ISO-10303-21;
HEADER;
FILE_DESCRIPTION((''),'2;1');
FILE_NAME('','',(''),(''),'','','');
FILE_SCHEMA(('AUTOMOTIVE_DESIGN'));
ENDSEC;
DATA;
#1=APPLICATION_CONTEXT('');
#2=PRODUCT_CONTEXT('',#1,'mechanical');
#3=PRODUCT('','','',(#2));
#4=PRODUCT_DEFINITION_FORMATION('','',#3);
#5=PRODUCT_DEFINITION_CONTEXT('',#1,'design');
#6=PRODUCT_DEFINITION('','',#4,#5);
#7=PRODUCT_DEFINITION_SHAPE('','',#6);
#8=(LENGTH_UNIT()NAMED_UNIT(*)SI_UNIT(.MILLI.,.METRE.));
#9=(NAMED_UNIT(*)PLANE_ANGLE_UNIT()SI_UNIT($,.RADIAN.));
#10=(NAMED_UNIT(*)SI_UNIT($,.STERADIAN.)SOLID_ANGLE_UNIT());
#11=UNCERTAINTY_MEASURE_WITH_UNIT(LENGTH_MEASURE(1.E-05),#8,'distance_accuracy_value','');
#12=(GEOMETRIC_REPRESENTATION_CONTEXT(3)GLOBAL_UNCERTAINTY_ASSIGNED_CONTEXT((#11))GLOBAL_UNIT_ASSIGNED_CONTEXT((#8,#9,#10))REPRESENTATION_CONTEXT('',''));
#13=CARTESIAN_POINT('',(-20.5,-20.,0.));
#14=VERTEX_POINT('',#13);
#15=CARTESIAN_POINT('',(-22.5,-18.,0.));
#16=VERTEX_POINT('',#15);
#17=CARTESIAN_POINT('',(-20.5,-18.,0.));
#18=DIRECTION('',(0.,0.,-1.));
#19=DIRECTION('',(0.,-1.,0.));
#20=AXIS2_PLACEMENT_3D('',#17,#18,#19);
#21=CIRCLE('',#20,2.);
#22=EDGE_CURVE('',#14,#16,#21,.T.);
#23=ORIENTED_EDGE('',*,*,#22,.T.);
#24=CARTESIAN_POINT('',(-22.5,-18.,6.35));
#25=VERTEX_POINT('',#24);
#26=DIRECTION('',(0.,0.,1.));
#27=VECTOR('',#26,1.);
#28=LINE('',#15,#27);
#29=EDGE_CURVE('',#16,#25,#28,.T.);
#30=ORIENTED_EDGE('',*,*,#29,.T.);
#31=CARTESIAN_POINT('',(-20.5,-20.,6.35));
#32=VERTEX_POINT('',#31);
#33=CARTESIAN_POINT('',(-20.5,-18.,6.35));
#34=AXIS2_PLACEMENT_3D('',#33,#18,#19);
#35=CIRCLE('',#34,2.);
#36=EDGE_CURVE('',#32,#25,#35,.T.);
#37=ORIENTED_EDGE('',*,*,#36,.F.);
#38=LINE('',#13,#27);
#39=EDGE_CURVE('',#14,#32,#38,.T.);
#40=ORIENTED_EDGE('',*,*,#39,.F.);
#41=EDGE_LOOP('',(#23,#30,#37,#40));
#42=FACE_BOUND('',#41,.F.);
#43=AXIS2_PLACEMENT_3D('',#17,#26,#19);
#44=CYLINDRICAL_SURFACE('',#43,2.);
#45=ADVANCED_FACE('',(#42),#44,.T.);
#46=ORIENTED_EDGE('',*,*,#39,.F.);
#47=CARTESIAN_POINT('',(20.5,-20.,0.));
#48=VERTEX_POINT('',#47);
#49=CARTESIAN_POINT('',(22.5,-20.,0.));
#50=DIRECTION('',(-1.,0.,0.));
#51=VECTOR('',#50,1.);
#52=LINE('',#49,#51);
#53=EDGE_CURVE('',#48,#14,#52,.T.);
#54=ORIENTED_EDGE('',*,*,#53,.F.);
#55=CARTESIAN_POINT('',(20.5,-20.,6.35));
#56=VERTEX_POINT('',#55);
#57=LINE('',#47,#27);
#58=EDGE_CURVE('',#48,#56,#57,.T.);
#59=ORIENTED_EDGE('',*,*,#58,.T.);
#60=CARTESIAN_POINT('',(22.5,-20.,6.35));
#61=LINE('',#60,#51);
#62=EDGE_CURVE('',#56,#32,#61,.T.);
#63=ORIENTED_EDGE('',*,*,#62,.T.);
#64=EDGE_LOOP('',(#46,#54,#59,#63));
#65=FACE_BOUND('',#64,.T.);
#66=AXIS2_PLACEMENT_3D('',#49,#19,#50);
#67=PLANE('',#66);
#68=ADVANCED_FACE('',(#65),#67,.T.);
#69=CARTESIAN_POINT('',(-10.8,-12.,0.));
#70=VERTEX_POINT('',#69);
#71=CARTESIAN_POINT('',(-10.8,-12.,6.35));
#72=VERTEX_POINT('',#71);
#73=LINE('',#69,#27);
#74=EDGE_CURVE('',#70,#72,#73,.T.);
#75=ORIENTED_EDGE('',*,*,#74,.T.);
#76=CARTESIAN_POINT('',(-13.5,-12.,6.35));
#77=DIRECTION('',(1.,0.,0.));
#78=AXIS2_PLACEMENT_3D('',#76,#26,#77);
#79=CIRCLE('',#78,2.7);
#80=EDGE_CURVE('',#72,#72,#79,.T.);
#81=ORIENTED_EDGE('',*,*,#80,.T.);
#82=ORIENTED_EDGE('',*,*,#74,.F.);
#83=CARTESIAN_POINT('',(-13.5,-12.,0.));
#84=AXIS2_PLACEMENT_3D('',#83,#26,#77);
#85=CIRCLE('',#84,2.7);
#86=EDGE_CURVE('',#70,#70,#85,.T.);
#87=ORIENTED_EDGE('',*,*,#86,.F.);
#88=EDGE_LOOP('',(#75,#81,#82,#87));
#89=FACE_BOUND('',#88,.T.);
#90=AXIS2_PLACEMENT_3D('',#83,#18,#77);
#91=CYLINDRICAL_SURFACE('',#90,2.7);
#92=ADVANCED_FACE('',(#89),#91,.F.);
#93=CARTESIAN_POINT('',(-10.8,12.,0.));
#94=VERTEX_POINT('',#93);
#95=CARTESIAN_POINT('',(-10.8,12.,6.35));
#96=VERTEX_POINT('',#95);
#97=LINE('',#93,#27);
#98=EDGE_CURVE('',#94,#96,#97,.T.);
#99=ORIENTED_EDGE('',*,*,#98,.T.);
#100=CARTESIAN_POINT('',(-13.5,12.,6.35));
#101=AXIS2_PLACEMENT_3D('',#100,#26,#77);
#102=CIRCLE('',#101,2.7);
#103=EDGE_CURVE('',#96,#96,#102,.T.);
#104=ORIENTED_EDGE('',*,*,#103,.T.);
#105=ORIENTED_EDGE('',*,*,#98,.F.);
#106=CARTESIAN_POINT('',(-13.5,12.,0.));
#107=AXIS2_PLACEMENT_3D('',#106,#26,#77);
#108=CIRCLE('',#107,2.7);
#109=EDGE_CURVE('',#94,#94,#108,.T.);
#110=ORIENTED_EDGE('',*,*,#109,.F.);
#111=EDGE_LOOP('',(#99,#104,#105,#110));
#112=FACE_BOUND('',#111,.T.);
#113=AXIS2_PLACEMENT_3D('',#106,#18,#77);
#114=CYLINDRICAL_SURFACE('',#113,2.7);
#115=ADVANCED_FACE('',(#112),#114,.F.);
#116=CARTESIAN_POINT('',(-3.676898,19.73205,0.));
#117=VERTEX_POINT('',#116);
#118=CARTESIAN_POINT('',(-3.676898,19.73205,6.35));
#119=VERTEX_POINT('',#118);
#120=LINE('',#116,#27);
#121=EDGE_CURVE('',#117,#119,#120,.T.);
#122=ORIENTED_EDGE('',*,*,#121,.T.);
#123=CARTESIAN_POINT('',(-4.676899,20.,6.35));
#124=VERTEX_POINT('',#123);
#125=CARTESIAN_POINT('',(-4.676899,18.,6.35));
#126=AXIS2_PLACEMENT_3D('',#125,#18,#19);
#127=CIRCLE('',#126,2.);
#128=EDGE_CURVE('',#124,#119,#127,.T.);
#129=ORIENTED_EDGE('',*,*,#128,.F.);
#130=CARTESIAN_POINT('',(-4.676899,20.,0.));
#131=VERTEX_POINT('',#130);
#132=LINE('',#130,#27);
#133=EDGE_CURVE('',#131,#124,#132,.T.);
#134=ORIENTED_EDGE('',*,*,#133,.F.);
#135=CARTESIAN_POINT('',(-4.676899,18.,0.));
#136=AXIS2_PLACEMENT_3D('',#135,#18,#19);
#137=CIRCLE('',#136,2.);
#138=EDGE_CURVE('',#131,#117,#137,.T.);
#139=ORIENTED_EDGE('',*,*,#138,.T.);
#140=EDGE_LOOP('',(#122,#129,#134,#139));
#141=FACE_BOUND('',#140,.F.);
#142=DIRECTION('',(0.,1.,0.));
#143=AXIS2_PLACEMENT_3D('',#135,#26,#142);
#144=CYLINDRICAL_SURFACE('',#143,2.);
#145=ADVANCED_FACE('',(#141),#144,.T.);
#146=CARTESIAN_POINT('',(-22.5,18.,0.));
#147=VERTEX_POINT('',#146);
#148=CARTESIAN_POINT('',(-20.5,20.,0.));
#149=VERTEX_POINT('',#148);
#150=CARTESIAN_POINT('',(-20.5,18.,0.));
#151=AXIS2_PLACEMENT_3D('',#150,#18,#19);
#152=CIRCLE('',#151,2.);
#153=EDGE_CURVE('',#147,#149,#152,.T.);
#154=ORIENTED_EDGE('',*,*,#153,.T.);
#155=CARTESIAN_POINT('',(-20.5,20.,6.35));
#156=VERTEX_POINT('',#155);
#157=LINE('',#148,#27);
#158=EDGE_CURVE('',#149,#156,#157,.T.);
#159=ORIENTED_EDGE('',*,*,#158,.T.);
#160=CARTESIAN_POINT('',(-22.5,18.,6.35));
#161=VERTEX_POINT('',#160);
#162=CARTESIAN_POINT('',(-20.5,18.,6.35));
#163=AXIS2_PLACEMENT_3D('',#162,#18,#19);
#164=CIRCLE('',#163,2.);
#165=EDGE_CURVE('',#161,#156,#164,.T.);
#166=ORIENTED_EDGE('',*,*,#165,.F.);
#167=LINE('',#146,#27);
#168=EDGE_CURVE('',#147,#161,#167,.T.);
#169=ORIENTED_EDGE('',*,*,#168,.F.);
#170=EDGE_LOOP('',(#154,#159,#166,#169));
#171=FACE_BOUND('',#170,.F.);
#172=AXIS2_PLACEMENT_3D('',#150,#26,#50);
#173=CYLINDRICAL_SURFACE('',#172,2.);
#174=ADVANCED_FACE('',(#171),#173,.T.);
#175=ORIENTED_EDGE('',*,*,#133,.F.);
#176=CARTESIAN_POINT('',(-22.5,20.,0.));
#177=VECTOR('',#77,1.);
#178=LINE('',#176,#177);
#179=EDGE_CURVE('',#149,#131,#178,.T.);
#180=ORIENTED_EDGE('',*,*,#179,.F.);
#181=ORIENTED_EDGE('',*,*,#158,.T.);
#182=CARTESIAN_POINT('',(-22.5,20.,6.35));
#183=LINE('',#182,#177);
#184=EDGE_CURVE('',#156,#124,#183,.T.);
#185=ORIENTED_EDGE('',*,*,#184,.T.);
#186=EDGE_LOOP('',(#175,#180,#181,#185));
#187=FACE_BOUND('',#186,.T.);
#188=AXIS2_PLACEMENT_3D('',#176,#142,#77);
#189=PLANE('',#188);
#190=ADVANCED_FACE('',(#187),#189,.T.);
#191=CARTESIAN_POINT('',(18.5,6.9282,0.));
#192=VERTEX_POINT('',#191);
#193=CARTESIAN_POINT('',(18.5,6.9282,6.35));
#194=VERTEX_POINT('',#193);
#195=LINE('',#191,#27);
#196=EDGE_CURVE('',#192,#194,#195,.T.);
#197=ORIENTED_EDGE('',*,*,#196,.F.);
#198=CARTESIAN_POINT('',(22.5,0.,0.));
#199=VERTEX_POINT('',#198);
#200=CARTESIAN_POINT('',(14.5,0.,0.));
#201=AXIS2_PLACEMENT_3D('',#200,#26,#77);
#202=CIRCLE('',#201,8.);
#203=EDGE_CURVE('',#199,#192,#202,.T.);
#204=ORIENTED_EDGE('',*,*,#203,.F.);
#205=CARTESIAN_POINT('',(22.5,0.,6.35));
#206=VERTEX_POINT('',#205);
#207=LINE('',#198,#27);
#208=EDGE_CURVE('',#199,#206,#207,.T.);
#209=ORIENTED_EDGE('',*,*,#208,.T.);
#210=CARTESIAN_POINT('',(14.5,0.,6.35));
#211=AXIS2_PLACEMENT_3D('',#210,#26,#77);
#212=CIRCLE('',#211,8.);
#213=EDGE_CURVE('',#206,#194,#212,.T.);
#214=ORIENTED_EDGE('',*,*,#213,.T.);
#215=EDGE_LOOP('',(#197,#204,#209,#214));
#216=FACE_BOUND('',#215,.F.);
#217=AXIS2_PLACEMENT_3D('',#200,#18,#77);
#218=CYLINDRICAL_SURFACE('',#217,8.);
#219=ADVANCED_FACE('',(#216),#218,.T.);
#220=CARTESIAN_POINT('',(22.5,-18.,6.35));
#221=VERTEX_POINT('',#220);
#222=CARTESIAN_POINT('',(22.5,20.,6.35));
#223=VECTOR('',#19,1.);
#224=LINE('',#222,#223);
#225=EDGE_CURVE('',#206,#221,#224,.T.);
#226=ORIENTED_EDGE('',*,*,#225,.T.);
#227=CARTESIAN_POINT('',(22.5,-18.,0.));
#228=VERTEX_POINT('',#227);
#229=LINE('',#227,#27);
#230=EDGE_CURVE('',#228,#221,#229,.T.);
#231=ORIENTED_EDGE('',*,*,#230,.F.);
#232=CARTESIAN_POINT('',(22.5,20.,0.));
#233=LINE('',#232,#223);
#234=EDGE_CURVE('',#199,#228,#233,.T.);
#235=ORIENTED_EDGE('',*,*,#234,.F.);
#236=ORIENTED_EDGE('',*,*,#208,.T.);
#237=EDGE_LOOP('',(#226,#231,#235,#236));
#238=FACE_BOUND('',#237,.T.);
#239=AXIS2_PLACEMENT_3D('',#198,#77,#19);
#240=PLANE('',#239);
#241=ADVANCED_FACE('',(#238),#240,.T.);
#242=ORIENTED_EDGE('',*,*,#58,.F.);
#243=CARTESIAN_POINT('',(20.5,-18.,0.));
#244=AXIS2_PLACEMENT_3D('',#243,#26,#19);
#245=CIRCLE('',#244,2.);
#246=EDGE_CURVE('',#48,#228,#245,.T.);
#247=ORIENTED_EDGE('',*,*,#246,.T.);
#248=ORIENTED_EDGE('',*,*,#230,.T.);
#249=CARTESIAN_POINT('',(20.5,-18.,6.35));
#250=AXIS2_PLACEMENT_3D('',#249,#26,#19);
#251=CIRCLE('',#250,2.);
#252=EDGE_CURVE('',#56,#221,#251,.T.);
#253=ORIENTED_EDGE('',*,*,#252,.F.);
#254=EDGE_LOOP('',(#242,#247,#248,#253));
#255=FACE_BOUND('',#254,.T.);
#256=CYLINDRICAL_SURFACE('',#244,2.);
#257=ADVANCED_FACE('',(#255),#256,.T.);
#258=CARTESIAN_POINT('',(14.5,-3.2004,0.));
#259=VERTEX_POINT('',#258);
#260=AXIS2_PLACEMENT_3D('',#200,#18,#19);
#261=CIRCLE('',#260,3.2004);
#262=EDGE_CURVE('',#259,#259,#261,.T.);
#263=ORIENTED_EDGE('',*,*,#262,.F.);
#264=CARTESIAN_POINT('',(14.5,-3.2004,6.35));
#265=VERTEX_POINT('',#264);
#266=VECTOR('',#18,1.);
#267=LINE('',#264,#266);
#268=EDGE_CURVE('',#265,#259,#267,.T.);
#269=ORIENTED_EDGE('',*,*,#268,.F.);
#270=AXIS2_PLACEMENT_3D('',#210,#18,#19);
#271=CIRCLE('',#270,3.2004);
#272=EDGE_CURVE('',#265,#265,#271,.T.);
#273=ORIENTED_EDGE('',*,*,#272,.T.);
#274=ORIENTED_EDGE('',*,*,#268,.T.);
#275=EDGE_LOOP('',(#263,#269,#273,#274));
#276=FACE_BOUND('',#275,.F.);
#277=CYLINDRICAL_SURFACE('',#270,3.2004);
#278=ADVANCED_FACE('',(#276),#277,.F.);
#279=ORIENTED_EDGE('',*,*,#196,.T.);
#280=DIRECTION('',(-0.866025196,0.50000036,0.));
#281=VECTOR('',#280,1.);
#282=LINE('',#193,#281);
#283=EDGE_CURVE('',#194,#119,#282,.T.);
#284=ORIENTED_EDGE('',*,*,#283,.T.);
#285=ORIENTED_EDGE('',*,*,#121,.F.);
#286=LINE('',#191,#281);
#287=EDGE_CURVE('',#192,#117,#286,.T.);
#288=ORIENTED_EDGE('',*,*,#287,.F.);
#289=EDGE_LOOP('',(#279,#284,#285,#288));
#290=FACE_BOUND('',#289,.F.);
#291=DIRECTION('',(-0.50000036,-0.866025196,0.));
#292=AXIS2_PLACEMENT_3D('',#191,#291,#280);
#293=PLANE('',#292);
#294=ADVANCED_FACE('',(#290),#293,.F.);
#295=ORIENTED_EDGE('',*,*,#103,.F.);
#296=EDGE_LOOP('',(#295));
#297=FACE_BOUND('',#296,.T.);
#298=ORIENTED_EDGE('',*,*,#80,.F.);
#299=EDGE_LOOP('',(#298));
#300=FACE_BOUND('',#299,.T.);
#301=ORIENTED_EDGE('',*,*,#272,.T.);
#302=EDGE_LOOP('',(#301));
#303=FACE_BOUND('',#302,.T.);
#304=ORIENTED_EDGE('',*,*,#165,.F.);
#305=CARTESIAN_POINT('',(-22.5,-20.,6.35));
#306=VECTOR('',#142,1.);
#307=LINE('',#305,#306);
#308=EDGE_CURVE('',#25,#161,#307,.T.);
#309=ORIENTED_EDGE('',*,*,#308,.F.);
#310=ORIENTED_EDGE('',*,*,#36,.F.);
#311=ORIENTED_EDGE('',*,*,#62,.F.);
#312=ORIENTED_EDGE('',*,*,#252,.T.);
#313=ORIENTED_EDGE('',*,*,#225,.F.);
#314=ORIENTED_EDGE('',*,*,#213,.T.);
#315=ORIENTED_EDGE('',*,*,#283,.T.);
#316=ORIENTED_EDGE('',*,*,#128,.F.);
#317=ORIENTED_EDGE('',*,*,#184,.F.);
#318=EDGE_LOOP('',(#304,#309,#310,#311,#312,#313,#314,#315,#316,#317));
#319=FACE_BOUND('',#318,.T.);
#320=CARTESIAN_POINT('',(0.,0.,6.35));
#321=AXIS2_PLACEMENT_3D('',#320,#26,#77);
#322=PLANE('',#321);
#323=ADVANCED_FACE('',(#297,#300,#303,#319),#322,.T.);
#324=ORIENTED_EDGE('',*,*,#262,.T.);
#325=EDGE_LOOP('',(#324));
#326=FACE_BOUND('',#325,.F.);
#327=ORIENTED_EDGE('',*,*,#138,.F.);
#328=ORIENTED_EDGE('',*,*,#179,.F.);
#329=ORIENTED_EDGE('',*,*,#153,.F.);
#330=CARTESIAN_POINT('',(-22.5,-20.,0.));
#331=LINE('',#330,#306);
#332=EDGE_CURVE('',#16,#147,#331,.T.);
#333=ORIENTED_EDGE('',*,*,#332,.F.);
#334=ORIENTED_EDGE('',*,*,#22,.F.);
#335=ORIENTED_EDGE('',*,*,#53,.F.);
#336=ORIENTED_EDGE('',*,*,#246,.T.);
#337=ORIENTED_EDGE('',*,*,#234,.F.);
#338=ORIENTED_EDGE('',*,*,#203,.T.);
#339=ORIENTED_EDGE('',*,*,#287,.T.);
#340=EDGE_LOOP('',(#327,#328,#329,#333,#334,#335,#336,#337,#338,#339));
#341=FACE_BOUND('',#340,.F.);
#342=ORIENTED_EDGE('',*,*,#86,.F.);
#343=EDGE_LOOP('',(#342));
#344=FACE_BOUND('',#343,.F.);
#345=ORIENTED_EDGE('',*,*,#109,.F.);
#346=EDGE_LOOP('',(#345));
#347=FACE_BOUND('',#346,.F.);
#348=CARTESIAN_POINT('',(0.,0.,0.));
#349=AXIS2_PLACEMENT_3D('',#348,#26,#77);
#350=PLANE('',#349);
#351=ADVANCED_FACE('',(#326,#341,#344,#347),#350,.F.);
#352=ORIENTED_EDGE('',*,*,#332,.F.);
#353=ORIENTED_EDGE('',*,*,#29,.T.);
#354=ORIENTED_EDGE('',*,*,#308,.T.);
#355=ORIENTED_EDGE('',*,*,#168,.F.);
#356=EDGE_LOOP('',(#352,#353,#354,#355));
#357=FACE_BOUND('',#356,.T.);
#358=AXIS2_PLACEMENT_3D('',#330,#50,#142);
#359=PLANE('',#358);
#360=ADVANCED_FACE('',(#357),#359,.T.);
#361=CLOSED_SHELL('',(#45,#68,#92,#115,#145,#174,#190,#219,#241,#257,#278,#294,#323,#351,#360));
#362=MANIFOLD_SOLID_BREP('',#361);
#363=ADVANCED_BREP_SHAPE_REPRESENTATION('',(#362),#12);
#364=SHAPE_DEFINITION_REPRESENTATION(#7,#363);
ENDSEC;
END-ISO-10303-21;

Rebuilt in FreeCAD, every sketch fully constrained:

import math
import FreeCAD as App
import Part
import Sketcher
Q = App.Units.Quantity


def edges_at(feature, points):
    """Names of the edges that pass closest to the given points."""
    edges = feature.Shape.Edges
    near = lambda p: min(range(len(edges)), key=lambda i: edges[i].distToShape(Part.Vertex(*p))[0])
    return sorted({f"Edge{near(p) + 1}" for p in points})

doc = App.newDocument("Part")
body = doc.addObject("PartDesign::Body", "Body")

# Sketch on XY plane
sketch1 = body.newObject("Sketcher::SketchObject", "Sketch")
sketch1.AttachmentSupport = (doc.getObject("XY_Plane"), [""])
sketch1.MapMode = "FlatFace"
sketch1.addGeometry([
    Part.LineSegment(App.Vector(-22.5, -20, 0), App.Vector(22.5, -20, 0)),  # 0
    Part.LineSegment(App.Vector(22.5, -20, 0), App.Vector(22.5, 0, 0)),  # 1
    Part.ArcOfCircle(Part.Circle(App.Vector(14.5, 0, 0), App.Vector(0, 0, 1), 8), math.radians(0), math.radians(60)),  # 2
    Part.LineSegment(App.Vector(18.5, 6.9, 0), App.Vector(-4.1, 20, 0)),  # 3
    Part.LineSegment(App.Vector(-4.1, 20, 0), App.Vector(-22.5, 20, 0)),  # 4
    Part.LineSegment(App.Vector(-22.5, 20, 0), App.Vector(-22.5, -20, 0)),  # 5
    Part.Circle(App.Vector(-13.5, -12, 0), App.Vector(0, 0, 1), 2.7),  # 6
    Part.Circle(App.Vector(-13.5, 12, 0), App.Vector(0, 0, 1), 2.7),  # 7
], False)
sketch1.addConstraint([
    Sketcher.Constraint("Coincident", 0, 2, 1, 1),
    Sketcher.Constraint("Tangent", 1, 2, 2, 1),
    Sketcher.Constraint("Tangent", 2, 2, 3, 1),
    Sketcher.Constraint("Coincident", 3, 2, 4, 1),
    Sketcher.Constraint("Coincident", 4, 2, 5, 1),
    Sketcher.Constraint("Coincident", 5, 2, 0, 1),
    Sketcher.Constraint("Horizontal", 0),
    Sketcher.Constraint("Vertical", 1),
    Sketcher.Constraint("Horizontal", 4),
    Sketcher.Constraint("Vertical", 5),
    Sketcher.Constraint("Equal", 6, 7),
    Sketcher.Constraint("Symmetric", 0, 2, 4, 2, -1, 1),
    Sketcher.Constraint("Symmetric", 6, 3, 7, 3, -1),
    Sketcher.Constraint("PointOnObject", 2, 3, -1),
    Sketcher.Constraint("Radius", 2, 8.0),
    Sketcher.Constraint("Diameter", 6, 5.4),
    Sketcher.Constraint("DistanceY", 1, 1, 1, 2, 20.0),
    Sketcher.Constraint("DistanceX", 6, 3, 2, 3, 28.0),
    Sketcher.Constraint("DistanceY", 0, 2, 6, 3, 8.0),
    Sketcher.Constraint("DistanceX", 4, 2, 7, 3, 9.0),
    Sketcher.Constraint("Angle", 3, Q("150 deg")),
])
pad1 = body.newObject("PartDesign::Pad", "Pad")
pad1.Profile = sketch1
pad1.Length = 6.35

# Sketch on XY plane
sketch2 = body.newObject("Sketcher::SketchObject", "Sketch001")
sketch2.AttachmentSupport = (doc.getObject("XY_Plane"), [""])
sketch2.MapMode = "FlatFace"
sketch2.AttachmentOffset = App.Placement(App.Vector(0, 0, 6.35), App.Rotation())
sketch2.addGeometry(Part.Circle(App.Vector(14.5, 0, 0), App.Vector(0, 0, 1), 3.2), False)
sketch2.addConstraint([
    Sketcher.Constraint("PointOnObject", 0, 3, -1),
    Sketcher.Constraint("Diameter", 0, 6.4008),
    Sketcher.Constraint("DistanceX", -1, 1, 0, 3, 14.5),
])
doc.recompute()
hole = body.newObject("PartDesign::Hole", "Hole")
hole.Profile = sketch2
hole.ThreadType = "None"
hole.Diameter = 6.4008
hole.DepthType = "ThroughAll"
doc.recompute()

fillet = body.newObject("PartDesign::Fillet", "Fillet")
fillet.Base = (hole, edges_at(hole, [
    (-22.5, 20, 3.175),
    (-22.5, -20, 3.175),
    (22.5, -20, 3.175),
    (-4.141, 20, 3.175),
]))
fillet.Radius = 2

doc.recompute()
